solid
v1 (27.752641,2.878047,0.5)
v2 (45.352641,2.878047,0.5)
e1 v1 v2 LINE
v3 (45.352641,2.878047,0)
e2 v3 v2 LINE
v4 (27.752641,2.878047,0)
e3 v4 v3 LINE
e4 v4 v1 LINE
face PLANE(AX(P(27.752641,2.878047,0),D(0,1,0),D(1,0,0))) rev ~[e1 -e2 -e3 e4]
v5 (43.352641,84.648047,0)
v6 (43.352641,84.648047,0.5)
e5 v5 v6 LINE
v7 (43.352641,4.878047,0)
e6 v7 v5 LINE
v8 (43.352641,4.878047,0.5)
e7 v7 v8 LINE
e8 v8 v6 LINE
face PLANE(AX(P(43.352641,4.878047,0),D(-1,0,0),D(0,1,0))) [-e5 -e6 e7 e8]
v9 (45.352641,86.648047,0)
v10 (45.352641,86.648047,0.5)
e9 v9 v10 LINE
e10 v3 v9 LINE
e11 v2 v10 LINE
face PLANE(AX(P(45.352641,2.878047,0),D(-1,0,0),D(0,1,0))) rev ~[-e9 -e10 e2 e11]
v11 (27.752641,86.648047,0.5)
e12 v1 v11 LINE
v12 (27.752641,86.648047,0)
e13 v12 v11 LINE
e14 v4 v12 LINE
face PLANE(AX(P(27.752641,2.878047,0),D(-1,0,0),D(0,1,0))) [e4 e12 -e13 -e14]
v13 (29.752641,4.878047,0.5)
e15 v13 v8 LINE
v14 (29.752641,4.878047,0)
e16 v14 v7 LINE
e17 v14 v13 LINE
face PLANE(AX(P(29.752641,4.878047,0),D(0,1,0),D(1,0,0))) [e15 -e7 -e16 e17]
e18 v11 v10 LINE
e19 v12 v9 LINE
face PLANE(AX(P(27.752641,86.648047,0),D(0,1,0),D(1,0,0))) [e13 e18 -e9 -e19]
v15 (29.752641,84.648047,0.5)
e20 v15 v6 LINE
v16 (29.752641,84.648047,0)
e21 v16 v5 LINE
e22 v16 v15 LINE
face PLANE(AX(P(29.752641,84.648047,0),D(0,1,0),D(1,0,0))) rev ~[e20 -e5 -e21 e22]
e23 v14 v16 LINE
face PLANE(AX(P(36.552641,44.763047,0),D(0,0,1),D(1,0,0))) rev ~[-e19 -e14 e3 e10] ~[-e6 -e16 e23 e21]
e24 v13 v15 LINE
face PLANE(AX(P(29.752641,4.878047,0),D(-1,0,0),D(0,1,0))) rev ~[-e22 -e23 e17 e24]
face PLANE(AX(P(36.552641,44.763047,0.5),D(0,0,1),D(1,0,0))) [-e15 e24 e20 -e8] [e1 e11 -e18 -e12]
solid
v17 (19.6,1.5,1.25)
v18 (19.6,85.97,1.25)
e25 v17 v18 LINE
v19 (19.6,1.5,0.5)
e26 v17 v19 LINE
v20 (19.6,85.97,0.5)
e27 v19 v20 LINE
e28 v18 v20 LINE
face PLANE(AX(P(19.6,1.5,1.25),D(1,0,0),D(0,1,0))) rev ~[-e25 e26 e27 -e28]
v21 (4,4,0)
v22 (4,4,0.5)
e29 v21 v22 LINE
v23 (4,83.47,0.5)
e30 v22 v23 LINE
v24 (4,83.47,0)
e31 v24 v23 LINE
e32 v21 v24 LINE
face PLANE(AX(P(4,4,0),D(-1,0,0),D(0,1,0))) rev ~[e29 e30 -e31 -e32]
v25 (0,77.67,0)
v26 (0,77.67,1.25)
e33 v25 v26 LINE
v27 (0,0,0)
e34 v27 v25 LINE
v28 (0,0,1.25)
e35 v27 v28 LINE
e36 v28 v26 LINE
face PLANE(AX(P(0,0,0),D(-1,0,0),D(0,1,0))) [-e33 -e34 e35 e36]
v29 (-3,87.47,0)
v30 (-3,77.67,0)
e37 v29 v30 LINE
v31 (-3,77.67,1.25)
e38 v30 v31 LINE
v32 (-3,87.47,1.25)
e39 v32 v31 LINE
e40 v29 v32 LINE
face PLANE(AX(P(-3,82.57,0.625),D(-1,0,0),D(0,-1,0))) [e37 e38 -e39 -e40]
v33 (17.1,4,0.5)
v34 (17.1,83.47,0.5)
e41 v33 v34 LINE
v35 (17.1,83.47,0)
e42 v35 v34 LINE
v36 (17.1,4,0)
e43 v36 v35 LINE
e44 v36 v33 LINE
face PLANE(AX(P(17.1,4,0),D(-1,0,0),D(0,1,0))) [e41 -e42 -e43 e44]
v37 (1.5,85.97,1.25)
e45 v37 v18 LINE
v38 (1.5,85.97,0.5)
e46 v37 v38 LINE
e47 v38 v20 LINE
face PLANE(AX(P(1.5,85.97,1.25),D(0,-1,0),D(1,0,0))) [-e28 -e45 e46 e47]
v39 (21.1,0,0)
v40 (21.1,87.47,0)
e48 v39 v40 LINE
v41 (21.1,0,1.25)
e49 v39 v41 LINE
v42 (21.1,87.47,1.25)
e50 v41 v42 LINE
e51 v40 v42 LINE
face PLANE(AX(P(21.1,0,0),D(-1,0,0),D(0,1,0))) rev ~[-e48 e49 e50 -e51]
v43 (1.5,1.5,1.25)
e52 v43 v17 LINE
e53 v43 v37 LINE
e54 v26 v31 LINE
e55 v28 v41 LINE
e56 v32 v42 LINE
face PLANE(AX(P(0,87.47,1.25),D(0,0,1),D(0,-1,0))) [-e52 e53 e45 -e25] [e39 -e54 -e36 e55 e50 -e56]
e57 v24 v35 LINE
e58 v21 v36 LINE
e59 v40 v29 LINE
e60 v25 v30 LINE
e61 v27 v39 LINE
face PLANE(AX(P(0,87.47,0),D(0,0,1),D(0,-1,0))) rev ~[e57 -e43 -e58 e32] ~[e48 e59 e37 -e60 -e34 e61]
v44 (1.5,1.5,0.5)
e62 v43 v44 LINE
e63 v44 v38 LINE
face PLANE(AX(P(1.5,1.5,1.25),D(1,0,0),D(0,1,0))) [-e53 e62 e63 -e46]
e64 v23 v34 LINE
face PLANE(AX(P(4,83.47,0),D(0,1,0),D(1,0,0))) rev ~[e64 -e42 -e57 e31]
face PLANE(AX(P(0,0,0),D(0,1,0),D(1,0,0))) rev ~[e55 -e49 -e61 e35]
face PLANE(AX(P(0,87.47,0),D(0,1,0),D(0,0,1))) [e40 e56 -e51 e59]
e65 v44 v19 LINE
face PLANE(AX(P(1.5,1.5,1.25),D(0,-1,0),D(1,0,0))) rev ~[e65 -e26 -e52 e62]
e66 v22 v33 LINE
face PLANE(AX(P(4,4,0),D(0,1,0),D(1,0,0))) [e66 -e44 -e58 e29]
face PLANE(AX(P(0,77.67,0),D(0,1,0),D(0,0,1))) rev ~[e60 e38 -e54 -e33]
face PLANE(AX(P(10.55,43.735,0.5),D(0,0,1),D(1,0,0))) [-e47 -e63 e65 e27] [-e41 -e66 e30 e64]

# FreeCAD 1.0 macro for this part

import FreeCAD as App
import Part
import Sketcher
Q = App.Units.Quantity

doc = App.newDocument("Part")
body = doc.addObject("PartDesign::Body", "Body")

sketch1 = body.newObject("Sketcher::SketchObject", "Sketch")
sketch1.AttachmentSupport = (doc.getObject("XY_Plane"), [""])
sketch1.MapMode = "FlatFace"
sketch1.addGeometry(Part.LineSegment(App.Vector(0, 87.47, 0), App.Vector(0, 0, 0)), False)
sketch1.addGeometry(Part.LineSegment(App.Vector(0, 0, 0), App.Vector(21.1, 0, 0)), False)
sketch1.addGeometry(Part.LineSegment(App.Vector(21.1, 0, 0), App.Vector(21.1, 87.47, 0)), False)
sketch1.addGeometry(Part.LineSegment(App.Vector(21.1, 87.47, 0), App.Vector(0, 87.47, 0)), False)
sketch1.addGeometry(Part.LineSegment(App.Vector(17.1, 4, 0), App.Vector(4, 4, 0)), False)
sketch1.addGeometry(Part.LineSegment(App.Vector(4, 4, 0), App.Vector(4, 83.47, 0)), False)
sketch1.addGeometry(Part.LineSegment(App.Vector(4, 83.47, 0), App.Vector(17.1, 83.47, 0)), False)
sketch1.addGeometry(Part.LineSegment(App.Vector(17.1, 83.47, 0), App.Vector(17.1, 4, 0)), False)
sketch1.addConstraint(Sketcher.Constraint("Coincident", 0, 2, 1, 1))
sketch1.addConstraint(Sketcher.Constraint("Coincident", 1, 2, 2, 1))
sketch1.addConstraint(Sketcher.Constraint("Coincident", 2, 2, 3, 1))
sketch1.addConstraint(Sketcher.Constraint("Coincident", 3, 2, 0, 1))
sketch1.addConstraint(Sketcher.Constraint("Coincident", 4, 2, 5, 1))
sketch1.addConstraint(Sketcher.Constraint("Coincident", 5, 2, 6, 1))
sketch1.addConstraint(Sketcher.Constraint("Coincident", 6, 2, 7, 1))
sketch1.addConstraint(Sketcher.Constraint("Coincident", 7, 2, 4, 1))
sketch1.addConstraint(Sketcher.Constraint("Vertical", 0))
sketch1.addConstraint(Sketcher.Constraint("Horizontal", 1))
sketch1.addConstraint(Sketcher.Constraint("Vertical", 2))
sketch1.addConstraint(Sketcher.Constraint("Horizontal", 3))
sketch1.addConstraint(Sketcher.Constraint("Horizontal", 4))
sketch1.addConstraint(Sketcher.Constraint("Vertical", 5))
sketch1.addConstraint(Sketcher.Constraint("Horizontal", 6))
sketch1.addConstraint(Sketcher.Constraint("Vertical", 7))
sketch1.addConstraint(Sketcher.Constraint("Coincident", 0, 2, -1, 1))
sketch1.addConstraint(Sketcher.Constraint("DistanceX", 1, 1, 1, 2, Q("21.1 mm")))
sketch1.addConstraint(Sketcher.Constraint("DistanceX", 4, 2, 4, 1, Q("13.1 mm")))
sketch1.addConstraint(Sketcher.Constraint("DistanceX", -1, 1, 4, 2, Q("4 mm")))
sketch1.addConstraint(Sketcher.Constraint("DistanceY", -1, 1, 4, 2, Q("4 mm")))
sketch1.addConstraint(Sketcher.Constraint("DistanceY", 5, 2, 3, 2, Q("4 mm")))
sketch1.addConstraint(Sketcher.Constraint("DistanceY", 0, 2, 0, 1, Q("87.47 mm")))
pad1 = body.newObject("PartDesign::Pad", "Pad")
pad1.Profile = sketch1
pad1.Length = 1.25

sketch2 = body.newObject("Sketcher::SketchObject", "Sketch001")
sketch2.AttachmentSupport = (doc.getObject("XY_Plane"), [""])
sketch2.MapMode = "FlatFace"
sketch2.AttachmentOffset = App.Placement(App.Vector(0, 0, 1.25), App.Rotation())
sketch2.addGeometry(Part.LineSegment(App.Vector(1.5, 85.97, 0), App.Vector(1.5, 1.5, 0)), False)
sketch2.addGeometry(Part.LineSegment(App.Vector(1.5, 1.5, 0), App.Vector(19.6, 1.5, 0)), False)
sketch2.addGeometry(Part.LineSegment(App.Vector(19.6, 1.5, 0), App.Vector(19.6, 85.97, 0)), False)
sketch2.addGeometry(Part.LineSegment(App.Vector(19.6, 85.97, 0), App.Vector(1.5, 85.97, 0)), False)
sketch2.addConstraint(Sketcher.Constraint("Coincident", 0, 2, 1, 1))
sketch2.addConstraint(Sketcher.Constraint("Coincident", 1, 2, 2, 1))
sketch2.addConstraint(Sketcher.Constraint("Coincident", 2, 2, 3, 1))
sketch2.addConstraint(Sketcher.Constraint("Coincident", 3, 2, 0, 1))
sketch2.addConstraint(Sketcher.Constraint("Vertical", 0))
sketch2.addConstraint(Sketcher.Constraint("Horizontal", 1))
sketch2.addConstraint(Sketcher.Constraint("Vertical", 2))
sketch2.addConstraint(Sketcher.Constraint("Horizontal", 3))
sketch2.addConstraint(Sketcher.Constraint("DistanceX", 1, 1, 1, 2, Q("18.1 mm")))
sketch2.addConstraint(Sketcher.Constraint("DistanceY", 0, 2, 0, 1, Q("84.47 mm")))
sketch2.addConstraint(Sketcher.Constraint("DistanceX", -1, 1, 0, 2, Q("1.5 mm")))
sketch2.addConstraint(Sketcher.Constraint("DistanceY", -1, 1, 0, 2, Q("1.5 mm")))
pocket1 = body.newObject("PartDesign::Pocket", "Pocket")
pocket1.Profile = sketch2
pocket1.Length = 0.75

sketch3 = body.newObject("Sketcher::SketchObject", "Sketch002")
sketch3.AttachmentSupport = (doc.getObject("YZ_Plane"), [""])
sketch3.MapMode = "FlatFace"
sketch3.addGeometry(Part.LineSegment(App.Vector(87.47, 1.25, 0), App.Vector(87.47, 0, 0)), False)
sketch3.addGeometry(Part.LineSegment(App.Vector(87.47, 0, 0), App.Vector(77.67, 0, 0)), False)
sketch3.addGeometry(Part.LineSegment(App.Vector(77.67, 0, 0), App.Vector(77.67, 1.25, 0)), False)
sketch3.addGeometry(Part.LineSegment(App.Vector(77.67, 1.25, 0), App.Vector(87.47, 1.25, 0)), False)
sketch3.addConstraint(Sketcher.Constraint("Coincident", 0, 2, 1, 1))
sketch3.addConstraint(Sketcher.Constraint("Coincident", 1, 2, 2, 1))
sketch3.addConstraint(Sketcher.Constraint("Coincident", 2, 2, 3, 1))
sketch3.addConstraint(Sketcher.Constraint("Coincident", 3, 2, 0, 1))
sketch3.addConstraint(Sketcher.Constraint("Vertical", 0))
sketch3.addConstraint(Sketcher.Constraint("Horizontal", 1))
sketch3.addConstraint(Sketcher.Constraint("Vertical", 2))
sketch3.addConstraint(Sketcher.Constraint("Horizontal", 3))
sketch3.addConstraint(Sketcher.Constraint("PointOnObject", 0, 2, -1))
sketch3.addConstraint(Sketcher.Constraint("DistanceX", 1, 2, 1, 1, Q("9.8 mm")))
sketch3.addConstraint(Sketcher.Constraint("DistanceY", 0, 2, 0, 1, Q("1.25 mm")))
sketch3.addConstraint(Sketcher.Constraint("DistanceX", -1, 1, 0, 2, Q("87.47 mm")))
pad2 = body.newObject("PartDesign::Pad", "Pad001")
pad2.Profile = sketch3
pad2.Length = 3
pad2.Reversed = True
body2 = doc.addObject("PartDesign::Body", "Body001")

sketch4 = body2.newObject("Sketcher::SketchObject", "Sketch003")
sketch4.AttachmentSupport = (doc.getObject("XY_Plane001"), [""])
sketch4.MapMode = "FlatFace"
sketch4.addGeometry(Part.LineSegment(App.Vector(27.752641, 86.648047, 0), App.Vector(27.752641, 2.878047, 0)), False)
sketch4.addGeometry(Part.LineSegment(App.Vector(27.752641, 2.878047, 0), App.Vector(45.352641, 2.878047, 0)), False)
sketch4.addGeometry(Part.LineSegment(App.Vector(45.352641, 2.878047, 0), App.Vector(45.352641, 86.648047, 0)), False)
sketch4.addGeometry(Part.LineSegment(App.Vector(45.352641, 86.648047, 0), App.Vector(27.752641, 86.648047, 0)), False)
sketch4.addGeometry(Part.LineSegment(App.Vector(43.352641, 4.878047, 0), App.Vector(29.752641, 4.878047, 0)), False)
sketch4.addGeometry(Part.LineSegment(App.Vector(29.752641, 4.878047, 0), App.Vector(29.752641, 84.648047, 0)), False)
sketch4.addGeometry(Part.LineSegment(App.Vector(29.752641, 84.648047, 0), App.Vector(43.352641, 84.648047, 0)), False)
sketch4.addGeometry(Part.LineSegment(App.Vector(43.352641, 84.648047, 0), App.Vector(43.352641, 4.878047, 0)), False)
sketch4.addConstraint(Sketcher.Constraint("Coincident", 0, 2, 1, 1))
sketch4.addConstraint(Sketcher.Constraint("Coincident", 1, 2, 2, 1))
sketch4.addConstraint(Sketcher.Constraint("Coincident", 2, 2, 3, 1))
sketch4.addConstraint(Sketcher.Constraint("Coincident", 3, 2, 0, 1))
sketch4.addConstraint(Sketcher.Constraint("Coincident", 4, 2, 5, 1))
sketch4.addConstraint(Sketcher.Constraint("Coincident", 5, 2, 6, 1))
sketch4.addConstraint(Sketcher.Constraint("Coincident", 6, 2, 7, 1))
sketch4.addConstraint(Sketcher.Constraint("Coincident", 7, 2, 4, 1))
sketch4.addConstraint(Sketcher.Constraint("Vertical", 0))
sketch4.addConstraint(Sketcher.Constraint("Horizontal", 1))
sketch4.addConstraint(Sketcher.Constraint("Vertical", 2))
sketch4.addConstraint(Sketcher.Constraint("Horizontal", 3))
sketch4.addConstraint(Sketcher.Constraint("Horizontal", 4))
sketch4.addConstraint(Sketcher.Constraint("Vertical", 5))
sketch4.addConstraint(Sketcher.Constraint("Horizontal", 6))
sketch4.addConstraint(Sketcher.Constraint("Vertical", 7))
sketch4.addConstraint(Sketcher.Constraint("DistanceX", 1, 1, 1, 2, Q("17.6 mm")))
sketch4.addConstraint(Sketcher.Constraint("DistanceX", 4, 2, 4, 1, Q("13.6 mm")))
sketch4.addConstraint(Sketcher.Constraint("DistanceX", 0, 2, 4, 2, Q("2 mm")))
sketch4.addConstraint(Sketcher.Constraint("DistanceY", 0, 2, 4, 2, Q("2 mm")))
sketch4.addConstraint(Sketcher.Constraint("DistanceY", 5, 2, 3, 2, Q("2 mm")))
sketch4.addConstraint(Sketcher.Constraint("DistanceY", 0, 2, 0, 1, Q("83.77 mm")))
sketch4.addConstraint(Sketcher.Constraint("DistanceX", -1, 1, 0, 2, Q("27.752641 mm")))
sketch4.addConstraint(Sketcher.Constraint("DistanceY", -1, 1, 0, 2, Q("2.878047 mm")))
pad3 = body2.newObject("PartDesign::Pad", "Pad002")
pad3.Profile = sketch4
pad3.Length = 0.5

doc.recompute()
